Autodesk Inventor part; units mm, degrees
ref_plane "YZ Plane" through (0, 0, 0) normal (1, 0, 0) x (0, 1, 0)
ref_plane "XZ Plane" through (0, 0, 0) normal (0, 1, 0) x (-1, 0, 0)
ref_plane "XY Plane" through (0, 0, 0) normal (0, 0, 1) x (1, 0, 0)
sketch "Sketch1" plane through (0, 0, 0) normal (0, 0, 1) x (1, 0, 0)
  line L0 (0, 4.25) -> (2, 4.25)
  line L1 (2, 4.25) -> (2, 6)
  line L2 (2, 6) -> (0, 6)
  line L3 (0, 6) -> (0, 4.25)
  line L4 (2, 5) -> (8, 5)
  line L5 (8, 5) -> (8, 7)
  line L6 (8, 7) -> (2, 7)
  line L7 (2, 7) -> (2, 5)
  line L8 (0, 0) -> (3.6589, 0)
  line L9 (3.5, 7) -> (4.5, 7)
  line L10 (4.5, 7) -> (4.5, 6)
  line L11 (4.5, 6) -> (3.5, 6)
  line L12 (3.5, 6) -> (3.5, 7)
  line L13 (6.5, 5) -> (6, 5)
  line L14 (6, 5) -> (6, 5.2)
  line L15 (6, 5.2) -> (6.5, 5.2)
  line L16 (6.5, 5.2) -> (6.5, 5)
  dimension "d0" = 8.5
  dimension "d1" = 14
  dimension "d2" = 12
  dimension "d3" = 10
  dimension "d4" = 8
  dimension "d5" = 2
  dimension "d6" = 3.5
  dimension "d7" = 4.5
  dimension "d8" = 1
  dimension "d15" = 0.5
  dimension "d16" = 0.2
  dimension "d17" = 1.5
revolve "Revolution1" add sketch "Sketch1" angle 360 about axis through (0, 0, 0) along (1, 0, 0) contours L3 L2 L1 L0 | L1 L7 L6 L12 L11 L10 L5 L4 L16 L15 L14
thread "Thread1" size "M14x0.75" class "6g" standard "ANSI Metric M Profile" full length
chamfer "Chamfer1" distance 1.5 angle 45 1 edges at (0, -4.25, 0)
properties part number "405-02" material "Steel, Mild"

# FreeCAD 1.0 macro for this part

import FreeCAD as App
import Part
import Sketcher
Q = App.Units.Quantity


def edges_at(feature, points):
    """Names of the edges that pass closest to the given points."""
    edges = feature.Shape.Edges
    near = lambda p: min(range(len(edges)), key=lambda i: edges[i].distToShape(Part.Vertex(*p))[0])
    return sorted({f"Edge{near(p) + 1}" for p in points})

doc = App.newDocument("Part")
body = doc.addObject("PartDesign::Body", "Body")

# Sketch on XY plane
sketch1 = body.newObject("Sketcher::SketchObject", "Sketch")
sketch1.AttachmentSupport = (doc.getObject("XY_Plane"), [""])
sketch1.MapMode = "FlatFace"
sketch1.addGeometry(Part.LineSegment(App.Vector(0, 6, 0), App.Vector(0, 4.25, 0)), False)
sketch1.addGeometry(Part.LineSegment(App.Vector(0, 4.25, 0), App.Vector(2, 4.25, 0)), False)
sketch1.addGeometry(Part.LineSegment(App.Vector(2, 4.25, 0), App.Vector(2, 5, 0)), False)
sketch1.addGeometry(Part.LineSegment(App.Vector(2, 5, 0), App.Vector(6, 5, 0)), False)
sketch1.addGeometry(Part.LineSegment(App.Vector(6, 5, 0), App.Vector(6, 5.2, 0)), False)
sketch1.addGeometry(Part.LineSegment(App.Vector(6, 5.2, 0), App.Vector(6.5, 5.2, 0)), False)
sketch1.addGeometry(Part.LineSegment(App.Vector(6.5, 5.2, 0), App.Vector(6.5, 5, 0)), False)
sketch1.addGeometry(Part.LineSegment(App.Vector(6.5, 5, 0), App.Vector(8, 5, 0)), False)
sketch1.addGeometry(Part.LineSegment(App.Vector(8, 5, 0), App.Vector(8, 7, 0)), False)
sketch1.addGeometry(Part.LineSegment(App.Vector(8, 7, 0), App.Vector(4.5, 7, 0)), False)
sketch1.addGeometry(Part.LineSegment(App.Vector(4.5, 7, 0), App.Vector(4.5, 6, 0)), False)
sketch1.addGeometry(Part.LineSegment(App.Vector(4.5, 6, 0), App.Vector(3.5, 6, 0)), False)
sketch1.addGeometry(Part.LineSegment(App.Vector(3.5, 6, 0), App.Vector(3.5, 7, 0)), False)
sketch1.addGeometry(Part.LineSegment(App.Vector(3.5, 7, 0), App.Vector(2, 7, 0)), False)
sketch1.addGeometry(Part.LineSegment(App.Vector(2, 7, 0), App.Vector(2, 6, 0)), False)
sketch1.addGeometry(Part.LineSegment(App.Vector(2, 6, 0), App.Vector(0, 6, 0)), False)
sketch1.addConstraint(Sketcher.Constraint("Coincident", 0, 2, 1, 1))
sketch1.addConstraint(Sketcher.Constraint("Coincident", 1, 2, 2, 1))
sketch1.addConstraint(Sketcher.Constraint("Coincident", 2, 2, 3, 1))
sketch1.addConstraint(Sketcher.Constraint("Coincident", 3, 2, 4, 1))
sketch1.addConstraint(Sketcher.Constraint("Coincident", 4, 2, 5, 1))
sketch1.addConstraint(Sketcher.Constraint("Coincident", 5, 2, 6, 1))
sketch1.addConstraint(Sketcher.Constraint("Coincident", 6, 2, 7, 1))
sketch1.addConstraint(Sketcher.Constraint("Coincident", 7, 2, 8, 1))
sketch1.addConstraint(Sketcher.Constraint("Coincident", 8, 2, 9, 1))
sketch1.addConstraint(Sketcher.Constraint("Coincident", 9, 2, 10, 1))
sketch1.addConstraint(Sketcher.Constraint("Coincident", 10, 2, 11, 1))
sketch1.addConstraint(Sketcher.Constraint("Coincident", 11, 2, 12, 1))
sketch1.addConstraint(Sketcher.Constraint("Coincident", 12, 2, 13, 1))
sketch1.addConstraint(Sketcher.Constraint("Coincident", 13, 2, 14, 1))
sketch1.addConstraint(Sketcher.Constraint("Coincident", 14, 2, 15, 1))
sketch1.addConstraint(Sketcher.Constraint("Coincident", 15, 2, 0, 1))
sketch1.addConstraint(Sketcher.Constraint("Vertical", 0))
sketch1.addConstraint(Sketcher.Constraint("Horizontal", 1))
sketch1.addConstraint(Sketcher.Constraint("Vertical", 2))
sketch1.addConstraint(Sketcher.Constraint("Horizontal", 3))
sketch1.addConstraint(Sketcher.Constraint("Vertical", 4))
sketch1.addConstraint(Sketcher.Constraint("Horizontal", 5))
sketch1.addConstraint(Sketcher.Constraint("Vertical", 6))
sketch1.addConstraint(Sketcher.Constraint("Horizontal", 7))
sketch1.addConstraint(Sketcher.Constraint("Vertical", 8))
sketch1.addConstraint(Sketcher.Constraint("Horizontal", 9))
sketch1.addConstraint(Sketcher.Constraint("Vertical", 10))
sketch1.addConstraint(Sketcher.Constraint("Horizontal", 11))
sketch1.addConstraint(Sketcher.Constraint("Vertical", 12))
sketch1.addConstraint(Sketcher.Constraint("Horizontal", 13))
sketch1.addConstraint(Sketcher.Constraint("Vertical", 14))
sketch1.addConstraint(Sketcher.Constraint("Horizontal", 15))
sketch1.addConstraint(Sketcher.Constraint("PointOnObject", 0, 2, -2))
sketch1.addConstraint(Sketcher.Constraint("Horizontal", 3, 2, 6, 2))
sketch1.addConstraint(Sketcher.Constraint("Horizontal", 9, 2, 12, 2))
sketch1.addConstraint(Sketcher.Constraint("Horizontal", 11, 2, 14, 2))
sketch1.addConstraint(Sketcher.Constraint("Vertical", 2, 2, 13, 2))
sketch1.addConstraint(Sketcher.Constraint("Equal", 7, 13))
sketch1.addConstraint(Sketcher.Constraint("Equal", 15, 8))
sketch1.addConstraint(Sketcher.Constraint("Equal", 11, 10))
sketch1.addConstraint(Sketcher.Constraint("DistanceX", 1, 1, 1, 2, Q("2 mm")))
sketch1.addConstraint(Sketcher.Constraint("DistanceX", 11, 2, 11, 1, Q("1 mm")))
sketch1.addConstraint(Sketcher.Constraint("DistanceX", 5, 1, 5, 2, Q("0.5 mm")))
sketch1.addConstraint(Sketcher.Constraint("DistanceX", 7, 1, 7, 2, Q("1.5 mm")))
sketch1.addConstraint(Sketcher.Constraint("DistanceX", 9, 2, 9, 1, Q("3.5 mm")))
sketch1.addConstraint(Sketcher.Constraint("DistanceY", 4, 1, 4, 2, Q("0.2 mm")))
sketch1.addConstraint(Sketcher.Constraint("DistanceY", -1, 1, 2, 2, Q("5 mm")))
sketch1.addConstraint(Sketcher.Constraint("DistanceY", 0, 2, 0, 1, Q("1.75 mm")))
revolution = body.newObject("PartDesign::Revolution", "Revolution")
revolution.Profile = sketch1
revolution.ReferenceAxis = (sketch1, ["H_Axis"])
revolution.Angle = 360
doc.recompute()

chamfer = body.newObject("PartDesign::Chamfer", "Chamfer")
chamfer.Base = (revolution, edges_at(revolution, [(0, -4.25, 0)]))
chamfer.Size = 1.5

doc.recompute()
